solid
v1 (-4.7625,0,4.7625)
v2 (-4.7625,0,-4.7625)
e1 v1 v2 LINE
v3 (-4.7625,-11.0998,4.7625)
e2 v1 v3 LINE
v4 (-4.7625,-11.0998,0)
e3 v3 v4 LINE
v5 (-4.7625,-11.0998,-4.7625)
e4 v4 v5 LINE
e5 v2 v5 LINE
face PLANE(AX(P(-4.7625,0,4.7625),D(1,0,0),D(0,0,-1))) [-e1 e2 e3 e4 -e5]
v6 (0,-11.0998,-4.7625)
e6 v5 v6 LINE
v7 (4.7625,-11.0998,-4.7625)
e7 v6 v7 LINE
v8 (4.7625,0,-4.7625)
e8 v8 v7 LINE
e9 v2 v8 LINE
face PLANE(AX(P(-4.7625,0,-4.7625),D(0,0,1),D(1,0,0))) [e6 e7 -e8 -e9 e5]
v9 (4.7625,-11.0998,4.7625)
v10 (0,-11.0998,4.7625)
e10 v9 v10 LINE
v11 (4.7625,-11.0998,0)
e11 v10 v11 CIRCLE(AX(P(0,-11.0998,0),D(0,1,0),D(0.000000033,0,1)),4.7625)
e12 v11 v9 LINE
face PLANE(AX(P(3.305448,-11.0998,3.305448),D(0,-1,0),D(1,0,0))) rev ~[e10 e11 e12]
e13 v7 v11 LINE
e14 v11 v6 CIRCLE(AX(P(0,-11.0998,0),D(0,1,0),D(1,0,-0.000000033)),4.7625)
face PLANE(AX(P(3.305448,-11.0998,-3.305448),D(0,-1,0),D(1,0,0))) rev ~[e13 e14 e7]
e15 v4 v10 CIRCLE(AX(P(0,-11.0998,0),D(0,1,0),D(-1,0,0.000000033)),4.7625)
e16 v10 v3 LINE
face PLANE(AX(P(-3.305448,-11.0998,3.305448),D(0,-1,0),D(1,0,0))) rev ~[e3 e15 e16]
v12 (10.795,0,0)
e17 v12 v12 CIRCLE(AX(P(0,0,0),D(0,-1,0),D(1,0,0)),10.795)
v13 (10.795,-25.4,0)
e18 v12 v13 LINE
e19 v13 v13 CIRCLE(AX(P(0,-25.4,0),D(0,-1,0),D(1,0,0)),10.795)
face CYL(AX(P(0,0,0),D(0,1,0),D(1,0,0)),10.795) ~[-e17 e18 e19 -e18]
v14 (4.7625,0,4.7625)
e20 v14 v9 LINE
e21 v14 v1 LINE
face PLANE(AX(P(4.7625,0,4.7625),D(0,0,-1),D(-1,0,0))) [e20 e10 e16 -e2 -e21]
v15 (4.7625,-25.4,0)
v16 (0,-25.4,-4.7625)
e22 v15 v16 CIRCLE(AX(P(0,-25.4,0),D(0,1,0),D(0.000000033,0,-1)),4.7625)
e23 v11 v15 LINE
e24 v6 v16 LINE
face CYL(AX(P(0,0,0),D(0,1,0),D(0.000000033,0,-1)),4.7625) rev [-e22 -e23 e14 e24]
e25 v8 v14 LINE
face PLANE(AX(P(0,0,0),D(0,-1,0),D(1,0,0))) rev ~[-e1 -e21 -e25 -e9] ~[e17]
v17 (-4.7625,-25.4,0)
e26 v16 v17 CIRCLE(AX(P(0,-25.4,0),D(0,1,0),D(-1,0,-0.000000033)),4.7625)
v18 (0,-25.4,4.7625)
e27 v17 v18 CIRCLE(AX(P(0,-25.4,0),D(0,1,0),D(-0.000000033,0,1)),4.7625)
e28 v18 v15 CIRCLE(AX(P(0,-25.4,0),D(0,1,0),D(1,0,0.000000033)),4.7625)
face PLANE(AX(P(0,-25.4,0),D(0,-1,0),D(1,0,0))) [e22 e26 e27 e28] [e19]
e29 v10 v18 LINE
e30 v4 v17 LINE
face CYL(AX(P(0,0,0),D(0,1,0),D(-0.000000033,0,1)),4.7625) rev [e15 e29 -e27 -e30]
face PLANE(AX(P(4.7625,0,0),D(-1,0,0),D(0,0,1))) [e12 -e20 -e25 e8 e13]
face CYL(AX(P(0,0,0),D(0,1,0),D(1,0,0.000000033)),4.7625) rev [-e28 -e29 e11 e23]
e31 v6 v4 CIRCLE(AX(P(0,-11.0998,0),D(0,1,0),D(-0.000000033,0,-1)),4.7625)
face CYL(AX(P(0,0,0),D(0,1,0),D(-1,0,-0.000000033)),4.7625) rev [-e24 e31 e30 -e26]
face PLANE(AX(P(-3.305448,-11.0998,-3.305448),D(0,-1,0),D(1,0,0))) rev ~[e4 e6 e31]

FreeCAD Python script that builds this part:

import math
import FreeCAD as App
import Part
import Sketcher
from FreeCAD import Vector
Q = App.Units.Quantity

doc = App.newDocument("Part")
body = doc.addObject("PartDesign::Body", "Body")

sketch1 = body.newObject("Sketcher::SketchObject", "Sketch")
sketch1.AttachmentSupport = (doc.getObject("XZ_Plane"), [""])
sketch1.MapMode = "FlatFace"
sketch1.addGeometry(Part.Circle(Vector(0, 0, 0), Vector(0, 0, 1), 11), False)
sketch1.addConstraint(Sketcher.Constraint("Coincident", 0, 3, -1, 1))
sketch1.addConstraint(Sketcher.Constraint("Diameter", 0, Q("0.85 in")))
pad1 = body.newObject("PartDesign::Pad", "Pad")
pad1.Profile = sketch1
pad1.Length = Q("1 in")

sketch2 = body.newObject("Sketcher::SketchObject", "Sketch001")
sketch2.AttachmentSupport = (doc.getObject("XZ_Plane"), [""])
sketch2.MapMode = "FlatFace"
sketch2.addGeometry(Part.ArcOfCircle(Part.Circle(Vector(0, 0, 0), Vector(0, 0, 1), 4.8), math.radians(0), math.radians(90)), False)
sketch2.addGeometry(Part.ArcOfCircle(Part.Circle(Vector(0, 0, 0), Vector(0, 0, 1), 4.8), math.radians(90), math.radians(180)), False)
sketch2.addGeometry(Part.ArcOfCircle(Part.Circle(Vector(0, 0, 0), Vector(0, 0, 1), 4.8), math.radians(-180), math.radians(-90)), False)
sketch2.addGeometry(Part.ArcOfCircle(Part.Circle(Vector(0, 0, 0), Vector(0, 0, 1), 4.8), math.radians(-90), math.radians(0)), False)
sketch2.addConstraint(Sketcher.Constraint("Tangent", 0, 2, 1, 1))
sketch2.addConstraint(Sketcher.Constraint("Tangent", 1, 2, 2, 1))
sketch2.addConstraint(Sketcher.Constraint("Tangent", 2, 2, 3, 1))
sketch2.addConstraint(Sketcher.Constraint("Tangent", 3, 2, 0, 1))
sketch2.addConstraint(Sketcher.Constraint("Coincident", 0, 3, -1, 1))
sketch2.addConstraint(Sketcher.Constraint("Equal", 0, 1))
sketch2.addConstraint(Sketcher.Constraint("PointOnObject", 0, 2, -2))
sketch2.addConstraint(Sketcher.Constraint("PointOnObject", 1, 2, -1))
sketch2.addConstraint(Sketcher.Constraint("PointOnObject", 2, 2, -2))
sketch2.addConstraint(Sketcher.Constraint("PointOnObject", 3, 2, -1))
sketch2.addConstraint(Sketcher.Constraint("Radius", 0, Q("0.1875 in")))
pocket1 = body.newObject("PartDesign::Pocket", "Pocket")
pocket1.Profile = sketch2
pocket1.Type = "ThroughAll"
pocket1.Reversed = True

sketch3 = body.newObject("Sketcher::SketchObject", "Sketch002")
sketch3.AttachmentSupport = (doc.getObject("XZ_Plane"), [""])
sketch3.MapMode = "FlatFace"
sketch3.addGeometry(Part.LineSegment(Vector(4.8, 0, 0), Vector(4.8, 4.8, 0)), False)
sketch3.addGeometry(Part.LineSegment(Vector(4.8, 4.8, 0), Vector(0, 4.8, 0)), False)
sketch3.addGeometry(Part.ArcOfCircle(Part.Circle(Vector(0, 0, 0), Vector(0, 0, 1), 4.8), math.radians(0), math.radians(90)), False)
sketch3.addGeometry(Part.ArcOfCircle(Part.Circle(Vector(0, 0, 0), Vector(0, 0, 1), 4.8), math.radians(90), math.radians(180)), False)
sketch3.addGeometry(Part.LineSegment(Vector(0, 4.8, 0), Vector(-4.8, 4.8, 0)), False)
sketch3.addGeometry(Part.LineSegment(Vector(-4.8, 4.8, 0), Vector(-4.8, 0, 0)), False)
sketch3.addGeometry(Part.LineSegment(Vector(4.8, -4.8, 0), Vector(4.8, 0, 0)), False)
sketch3.addGeometry(Part.ArcOfCircle(Part.Circle(Vector(0, 0, 0), Vector(0, 0, 1), 4.8), math.radians(-90), math.radians(0)), False)
sketch3.addGeometry(Part.LineSegment(Vector(0, -4.8, 0), Vector(4.8, -4.8, 0)), False)
sketch3.addGeometry(Part.ArcOfCircle(Part.Circle(Vector(0, 0, 0), Vector(0, 0, 1), 4.8), math.radians(-180), math.radians(-90)), False)
sketch3.addGeometry(Part.LineSegment(Vector(-4.8, 0, 0), Vector(-4.8, -4.8, 0)), False)
sketch3.addGeometry(Part.LineSegment(Vector(-4.8, -4.8, 0), Vector(0, -4.8, 0)), False)
sketch3.addConstraint(Sketcher.Constraint("Coincident", 0, 2, 1, 1))
sketch3.addConstraint(Sketcher.Constraint("Tangent", 1, 2, 2, 2))
sketch3.addConstraint(Sketcher.Constraint("Tangent", 2, 1, 0, 1))
sketch3.addConstraint(Sketcher.Constraint("Tangent", 3, 1, 4, 1))
sketch3.addConstraint(Sketcher.Constraint("Coincident", 4, 2, 5, 1))
sketch3.addConstraint(Sketcher.Constraint("Tangent", 5, 2, 3, 2))
sketch3.addConstraint(Sketcher.Constraint("Tangent", 6, 2, 7, 2))
sketch3.addConstraint(Sketcher.Constraint("Tangent", 7, 1, 8, 1))
sketch3.addConstraint(Sketcher.Constraint("Coincident", 8, 2, 6, 1))
sketch3.addConstraint(Sketcher.Constraint("Tangent", 9, 1, 10, 1))
sketch3.addConstraint(Sketcher.Constraint("Coincident", 10, 2, 11, 1))
sketch3.addConstraint(Sketcher.Constraint("Tangent", 11, 2, 9, 2))
sketch3.addConstraint(Sketcher.Constraint("Vertical", 0))
sketch3.addConstraint(Sketcher.Constraint("Horizontal", 1))
sketch3.addConstraint(Sketcher.Constraint("Horizontal", 4))
sketch3.addConstraint(Sketcher.Constraint("Vertical", 5))
sketch3.addConstraint(Sketcher.Constraint("Vertical", 6))
sketch3.addConstraint(Sketcher.Constraint("Horizontal", 8))
sketch3.addConstraint(Sketcher.Constraint("Vertical", 10))
sketch3.addConstraint(Sketcher.Constraint("Horizontal", 11))
sketch3.addConstraint(Sketcher.Constraint("Coincident", 2, 3, -1, 1))
sketch3.addConstraint(Sketcher.Constraint("Coincident", 3, 3, -1, 1))
sketch3.addConstraint(Sketcher.Constraint("Coincident", 7, 3, -1, 1))
sketch3.addConstraint(Sketcher.Constraint("Coincident", 9, 3, -1, 1))
sketch3.addConstraint(Sketcher.Constraint("Equal", 2, 3))
sketch3.addConstraint(Sketcher.Constraint("Equal", 3, 7))
sketch3.addConstraint(Sketcher.Constraint("Equal", 7, 9))
sketch3.addConstraint(Sketcher.Constraint("Radius", 2, Q("0.1875 in")))
pocket2 = body.newObject("PartDesign::Pocket", "Pocket001")
pocket2.Profile = sketch3
pocket2.Length = Q("0.437 in")
pocket2.Reversed = True

doc.recompute()
